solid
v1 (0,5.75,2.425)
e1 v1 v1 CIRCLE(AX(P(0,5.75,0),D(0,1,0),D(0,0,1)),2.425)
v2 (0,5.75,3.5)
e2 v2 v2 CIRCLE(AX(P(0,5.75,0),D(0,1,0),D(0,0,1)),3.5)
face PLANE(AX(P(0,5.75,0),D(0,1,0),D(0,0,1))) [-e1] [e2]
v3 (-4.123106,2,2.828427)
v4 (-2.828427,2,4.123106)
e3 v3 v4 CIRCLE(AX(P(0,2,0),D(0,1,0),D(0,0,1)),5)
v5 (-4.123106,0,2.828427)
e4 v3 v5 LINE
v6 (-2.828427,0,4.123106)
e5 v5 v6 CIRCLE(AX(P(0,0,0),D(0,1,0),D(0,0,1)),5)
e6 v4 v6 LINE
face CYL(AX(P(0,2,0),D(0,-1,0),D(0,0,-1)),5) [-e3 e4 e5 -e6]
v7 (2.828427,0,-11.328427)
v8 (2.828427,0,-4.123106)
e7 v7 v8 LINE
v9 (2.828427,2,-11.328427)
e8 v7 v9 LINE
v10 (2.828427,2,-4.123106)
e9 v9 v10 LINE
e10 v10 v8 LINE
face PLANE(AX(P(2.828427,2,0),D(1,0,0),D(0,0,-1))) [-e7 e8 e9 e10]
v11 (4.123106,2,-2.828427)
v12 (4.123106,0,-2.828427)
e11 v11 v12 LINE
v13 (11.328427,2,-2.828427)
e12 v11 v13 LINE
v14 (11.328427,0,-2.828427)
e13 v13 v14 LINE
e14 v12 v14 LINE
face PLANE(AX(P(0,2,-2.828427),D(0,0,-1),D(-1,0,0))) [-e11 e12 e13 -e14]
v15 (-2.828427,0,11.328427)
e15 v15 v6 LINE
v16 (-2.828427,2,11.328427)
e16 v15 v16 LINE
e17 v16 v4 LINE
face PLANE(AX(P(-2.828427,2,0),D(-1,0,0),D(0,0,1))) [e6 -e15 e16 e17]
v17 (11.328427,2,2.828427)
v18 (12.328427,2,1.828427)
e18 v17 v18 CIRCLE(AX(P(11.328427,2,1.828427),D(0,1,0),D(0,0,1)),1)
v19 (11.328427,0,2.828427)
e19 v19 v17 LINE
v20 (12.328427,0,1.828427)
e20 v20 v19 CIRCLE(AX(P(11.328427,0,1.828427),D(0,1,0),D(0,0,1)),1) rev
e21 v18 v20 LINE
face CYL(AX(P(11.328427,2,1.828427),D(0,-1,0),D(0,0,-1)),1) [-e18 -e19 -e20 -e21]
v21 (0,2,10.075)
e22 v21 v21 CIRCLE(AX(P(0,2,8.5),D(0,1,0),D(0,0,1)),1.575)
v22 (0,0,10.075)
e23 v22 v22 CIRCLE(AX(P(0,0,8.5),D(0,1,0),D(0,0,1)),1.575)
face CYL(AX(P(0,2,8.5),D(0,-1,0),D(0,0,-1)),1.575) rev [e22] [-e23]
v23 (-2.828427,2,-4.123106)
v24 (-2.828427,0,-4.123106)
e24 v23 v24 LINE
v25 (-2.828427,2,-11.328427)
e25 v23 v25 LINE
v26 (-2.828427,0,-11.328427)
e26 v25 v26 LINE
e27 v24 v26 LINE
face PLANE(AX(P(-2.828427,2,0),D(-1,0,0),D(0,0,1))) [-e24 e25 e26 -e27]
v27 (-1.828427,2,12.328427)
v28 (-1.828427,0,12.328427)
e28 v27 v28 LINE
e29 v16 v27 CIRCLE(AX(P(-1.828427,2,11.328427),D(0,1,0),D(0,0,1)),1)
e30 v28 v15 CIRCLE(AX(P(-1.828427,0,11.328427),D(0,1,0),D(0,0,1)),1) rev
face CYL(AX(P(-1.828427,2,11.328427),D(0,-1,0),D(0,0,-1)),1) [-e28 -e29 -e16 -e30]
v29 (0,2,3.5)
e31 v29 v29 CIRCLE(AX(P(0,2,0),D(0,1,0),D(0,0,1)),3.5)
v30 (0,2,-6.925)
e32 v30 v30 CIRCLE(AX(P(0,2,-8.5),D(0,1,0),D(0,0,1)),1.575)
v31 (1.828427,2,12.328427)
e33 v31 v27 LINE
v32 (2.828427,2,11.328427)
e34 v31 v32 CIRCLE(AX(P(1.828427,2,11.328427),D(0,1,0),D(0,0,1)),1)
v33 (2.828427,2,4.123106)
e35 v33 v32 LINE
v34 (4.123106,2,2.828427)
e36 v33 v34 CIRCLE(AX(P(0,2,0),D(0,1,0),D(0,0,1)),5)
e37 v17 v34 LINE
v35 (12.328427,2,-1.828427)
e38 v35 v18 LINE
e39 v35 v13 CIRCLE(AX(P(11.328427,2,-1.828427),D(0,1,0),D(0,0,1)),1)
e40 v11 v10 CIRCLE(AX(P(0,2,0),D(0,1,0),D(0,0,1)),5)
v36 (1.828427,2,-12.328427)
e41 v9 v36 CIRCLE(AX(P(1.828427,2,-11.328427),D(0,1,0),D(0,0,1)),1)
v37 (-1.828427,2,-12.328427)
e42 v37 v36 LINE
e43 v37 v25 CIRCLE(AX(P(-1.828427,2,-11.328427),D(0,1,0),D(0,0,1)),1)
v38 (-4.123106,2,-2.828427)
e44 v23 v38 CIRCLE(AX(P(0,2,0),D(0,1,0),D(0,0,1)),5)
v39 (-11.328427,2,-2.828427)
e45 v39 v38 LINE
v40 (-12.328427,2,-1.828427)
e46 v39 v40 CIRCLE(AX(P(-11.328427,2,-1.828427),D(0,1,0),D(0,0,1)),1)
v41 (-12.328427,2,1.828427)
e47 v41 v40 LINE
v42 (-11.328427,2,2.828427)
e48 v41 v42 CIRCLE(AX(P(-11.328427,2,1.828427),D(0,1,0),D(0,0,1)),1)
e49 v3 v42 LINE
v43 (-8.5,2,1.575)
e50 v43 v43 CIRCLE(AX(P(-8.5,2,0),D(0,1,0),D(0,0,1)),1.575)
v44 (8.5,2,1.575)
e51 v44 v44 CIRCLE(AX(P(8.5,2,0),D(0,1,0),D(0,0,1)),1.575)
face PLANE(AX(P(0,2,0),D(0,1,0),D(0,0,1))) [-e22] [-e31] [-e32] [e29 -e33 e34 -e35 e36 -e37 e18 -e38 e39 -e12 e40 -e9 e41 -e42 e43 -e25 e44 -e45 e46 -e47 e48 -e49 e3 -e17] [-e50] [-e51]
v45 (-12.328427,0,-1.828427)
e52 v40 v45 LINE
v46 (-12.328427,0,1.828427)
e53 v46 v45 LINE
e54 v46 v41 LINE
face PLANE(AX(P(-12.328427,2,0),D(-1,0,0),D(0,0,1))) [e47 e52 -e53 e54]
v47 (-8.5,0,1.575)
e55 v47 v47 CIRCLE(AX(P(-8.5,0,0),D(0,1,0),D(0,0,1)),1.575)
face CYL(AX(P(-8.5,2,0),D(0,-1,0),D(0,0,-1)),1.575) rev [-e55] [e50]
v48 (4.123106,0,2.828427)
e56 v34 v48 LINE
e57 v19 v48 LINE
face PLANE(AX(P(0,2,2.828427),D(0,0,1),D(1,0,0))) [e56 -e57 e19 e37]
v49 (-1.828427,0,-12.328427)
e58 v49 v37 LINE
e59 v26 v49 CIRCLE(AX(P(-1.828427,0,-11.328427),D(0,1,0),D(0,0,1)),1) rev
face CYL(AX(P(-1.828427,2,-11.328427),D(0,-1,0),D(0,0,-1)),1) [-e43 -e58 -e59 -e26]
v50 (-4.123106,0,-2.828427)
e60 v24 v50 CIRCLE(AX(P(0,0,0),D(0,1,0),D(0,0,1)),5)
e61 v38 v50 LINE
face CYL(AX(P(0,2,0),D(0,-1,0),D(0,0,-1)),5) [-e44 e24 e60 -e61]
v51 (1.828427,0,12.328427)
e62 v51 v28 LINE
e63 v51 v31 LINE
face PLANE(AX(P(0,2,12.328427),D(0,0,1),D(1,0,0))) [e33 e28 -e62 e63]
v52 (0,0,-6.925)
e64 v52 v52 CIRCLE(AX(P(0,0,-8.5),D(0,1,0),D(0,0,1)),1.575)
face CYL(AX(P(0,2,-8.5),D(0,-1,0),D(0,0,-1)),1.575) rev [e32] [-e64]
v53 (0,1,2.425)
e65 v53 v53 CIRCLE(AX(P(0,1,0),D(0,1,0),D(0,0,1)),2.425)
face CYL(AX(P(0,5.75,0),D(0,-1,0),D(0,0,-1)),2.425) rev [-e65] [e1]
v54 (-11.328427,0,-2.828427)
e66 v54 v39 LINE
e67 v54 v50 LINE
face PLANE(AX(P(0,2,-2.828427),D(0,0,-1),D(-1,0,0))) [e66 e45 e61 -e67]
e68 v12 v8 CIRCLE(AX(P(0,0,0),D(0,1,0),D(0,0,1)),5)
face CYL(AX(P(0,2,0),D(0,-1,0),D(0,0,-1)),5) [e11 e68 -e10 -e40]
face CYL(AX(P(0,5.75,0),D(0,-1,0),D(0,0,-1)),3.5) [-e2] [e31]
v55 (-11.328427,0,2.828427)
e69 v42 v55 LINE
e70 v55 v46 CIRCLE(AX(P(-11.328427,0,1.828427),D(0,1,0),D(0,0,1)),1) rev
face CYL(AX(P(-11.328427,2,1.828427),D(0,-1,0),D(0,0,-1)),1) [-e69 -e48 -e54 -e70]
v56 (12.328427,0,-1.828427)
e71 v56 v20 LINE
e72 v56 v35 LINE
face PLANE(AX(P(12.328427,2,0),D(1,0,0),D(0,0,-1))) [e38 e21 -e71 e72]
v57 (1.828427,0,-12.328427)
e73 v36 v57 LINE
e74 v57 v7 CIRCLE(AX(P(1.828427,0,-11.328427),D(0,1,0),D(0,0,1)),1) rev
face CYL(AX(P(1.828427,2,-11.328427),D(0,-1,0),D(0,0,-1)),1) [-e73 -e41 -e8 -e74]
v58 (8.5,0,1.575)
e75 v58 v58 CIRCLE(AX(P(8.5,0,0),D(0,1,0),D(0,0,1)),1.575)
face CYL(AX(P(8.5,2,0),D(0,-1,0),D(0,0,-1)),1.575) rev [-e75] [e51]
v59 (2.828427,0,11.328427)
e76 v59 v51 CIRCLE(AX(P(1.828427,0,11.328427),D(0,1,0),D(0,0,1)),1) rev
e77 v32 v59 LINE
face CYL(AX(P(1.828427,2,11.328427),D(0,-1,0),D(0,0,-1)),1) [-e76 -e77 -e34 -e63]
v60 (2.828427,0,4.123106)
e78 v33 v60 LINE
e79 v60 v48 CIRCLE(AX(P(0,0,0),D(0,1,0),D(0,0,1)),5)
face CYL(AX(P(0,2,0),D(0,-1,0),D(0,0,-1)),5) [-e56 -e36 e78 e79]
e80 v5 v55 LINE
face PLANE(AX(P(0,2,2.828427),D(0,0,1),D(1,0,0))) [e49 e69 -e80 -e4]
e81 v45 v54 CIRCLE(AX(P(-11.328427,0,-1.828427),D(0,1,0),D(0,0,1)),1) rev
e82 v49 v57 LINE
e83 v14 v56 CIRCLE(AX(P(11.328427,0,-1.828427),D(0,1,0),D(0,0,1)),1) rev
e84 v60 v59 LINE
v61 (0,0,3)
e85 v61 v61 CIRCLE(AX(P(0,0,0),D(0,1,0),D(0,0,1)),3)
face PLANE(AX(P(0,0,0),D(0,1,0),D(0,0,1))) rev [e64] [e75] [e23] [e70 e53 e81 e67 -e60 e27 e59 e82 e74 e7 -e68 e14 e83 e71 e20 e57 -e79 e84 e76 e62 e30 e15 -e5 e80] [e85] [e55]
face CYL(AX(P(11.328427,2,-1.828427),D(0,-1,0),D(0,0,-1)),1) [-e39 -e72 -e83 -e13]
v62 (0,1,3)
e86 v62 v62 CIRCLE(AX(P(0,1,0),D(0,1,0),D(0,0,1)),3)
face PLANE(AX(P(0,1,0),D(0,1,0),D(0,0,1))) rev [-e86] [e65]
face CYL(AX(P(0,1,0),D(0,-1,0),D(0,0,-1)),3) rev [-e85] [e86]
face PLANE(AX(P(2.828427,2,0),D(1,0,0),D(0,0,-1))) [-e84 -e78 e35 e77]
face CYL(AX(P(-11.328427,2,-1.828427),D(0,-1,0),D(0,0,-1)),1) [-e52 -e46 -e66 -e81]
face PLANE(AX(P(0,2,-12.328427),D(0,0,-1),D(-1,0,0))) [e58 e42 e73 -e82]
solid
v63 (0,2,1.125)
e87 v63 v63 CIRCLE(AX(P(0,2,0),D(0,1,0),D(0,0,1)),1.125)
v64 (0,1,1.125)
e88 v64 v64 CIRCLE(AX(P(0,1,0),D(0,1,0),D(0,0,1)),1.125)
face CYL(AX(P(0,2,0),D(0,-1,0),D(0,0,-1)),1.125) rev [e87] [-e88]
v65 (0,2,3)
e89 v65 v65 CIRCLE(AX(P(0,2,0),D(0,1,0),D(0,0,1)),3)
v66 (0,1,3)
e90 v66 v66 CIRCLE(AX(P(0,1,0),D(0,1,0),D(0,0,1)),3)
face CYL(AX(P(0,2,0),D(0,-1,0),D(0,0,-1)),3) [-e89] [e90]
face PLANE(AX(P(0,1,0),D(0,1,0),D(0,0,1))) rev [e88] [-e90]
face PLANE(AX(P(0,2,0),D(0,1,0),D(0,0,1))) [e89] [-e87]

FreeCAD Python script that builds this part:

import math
import FreeCAD as App
import Part
import Sketcher
Q = App.Units.Quantity


def edges_at(feature, points):
    """Names of the edges that pass closest to the given points."""
    edges = feature.Shape.Edges
    near = lambda p: min(range(len(edges)), key=lambda i: edges[i].distToShape(Part.Vertex(*p))[0])
    return sorted({f"Edge{near(p) + 1}" for p in points})

doc = App.newDocument("Part")
body = doc.addObject("PartDesign::Body", "Body")

# Sketch on XZ plane
sketch1 = body.newObject("Sketcher::SketchObject", "Sketch")
sketch1.AttachmentSupport = (doc.getObject("XZ_Plane"), [""])
sketch1.MapMode = "FlatFace"
sketch1.addGeometry(Part.ArcOfCircle(Part.Circle(App.Vector(0, 0, 0), App.Vector(0, 0, 1), 5), math.radians(-146), math.radians(-124)), False)
sketch1.addGeometry(Part.LineSegment(App.Vector(-4.1, -2.8, 0), App.Vector(-12.3, -2.8, 0)), False)
sketch1.addGeometry(Part.LineSegment(App.Vector(-12.3, -2.8, 0), App.Vector(-12.3, 2.8, 0)), False)
sketch1.addGeometry(Part.LineSegment(App.Vector(-12.3, 2.8, 0), App.Vector(-4.1, 2.8, 0)), False)
sketch1.addGeometry(Part.ArcOfCircle(Part.Circle(App.Vector(0, 0, 0), App.Vector(0, 0, 1), 5), math.radians(124), math.radians(146)), False)
sketch1.addGeometry(Part.LineSegment(App.Vector(-2.8, 4.1, 0), App.Vector(-2.8, 12.3, 0)), False)
sketch1.addGeometry(Part.LineSegment(App.Vector(-2.8, 12.3, 0), App.Vector(2.8, 12.3, 0)), False)
sketch1.addGeometry(Part.LineSegment(App.Vector(2.8, 12.3, 0), App.Vector(2.8, 4.1, 0)), False)
sketch1.addGeometry(Part.ArcOfCircle(Part.Circle(App.Vector(0, 0, 0), App.Vector(0, 0, 1), 5), math.radians(34), math.radians(56)), False)
sketch1.addGeometry(Part.LineSegment(App.Vector(4.1, 2.8, 0), App.Vector(12.3, 2.8, 0)), False)
sketch1.addGeometry(Part.LineSegment(App.Vector(12.3, 2.8, 0), App.Vector(12.3, -2.8, 0)), False)
sketch1.addGeometry(Part.LineSegment(App.Vector(12.3, -2.8, 0), App.Vector(4.1, -2.8, 0)), False)
sketch1.addGeometry(Part.ArcOfCircle(Part.Circle(App.Vector(0, 0, 0), App.Vector(0, 0, 1), 5), math.radians(-56), math.radians(-34)), False)
sketch1.addGeometry(Part.LineSegment(App.Vector(2.8, -4.1, 0), App.Vector(2.8, -12.3, 0)), False)
sketch1.addGeometry(Part.LineSegment(App.Vector(2.8, -12.3, 0), App.Vector(-2.8, -12.3, 0)), False)
sketch1.addGeometry(Part.LineSegment(App.Vector(-2.8, -12.3, 0), App.Vector(-2.8, -4.1, 0)), False)
sketch1.addGeometry(Part.Circle(App.Vector(0, 8.5, 0), App.Vector(0, 0, 1), 1.6), False)
sketch1.addGeometry(Part.Circle(App.Vector(-8.5, 0, 0), App.Vector(0, 0, 1), 1.6), False)
sketch1.addGeometry(Part.Circle(App.Vector(0, 0, 0), App.Vector(0, 0, 1), 3.5), False)
sketch1.addGeometry(Part.Circle(App.Vector(8.5, 0, 0), App.Vector(0, 0, 1), 1.6), False)
sketch1.addGeometry(Part.Circle(App.Vector(0, -8.5, 0), App.Vector(0, 0, 1), 1.6), False)
sketch1.addConstraint(Sketcher.Constraint("Coincident", 0, 1, 1, 1))
sketch1.addConstraint(Sketcher.Constraint("Coincident", 1, 2, 2, 1))
sketch1.addConstraint(Sketcher.Constraint("Coincident", 2, 2, 3, 1))
sketch1.addConstraint(Sketcher.Constraint("Coincident", 3, 2, 4, 2))
sketch1.addConstraint(Sketcher.Constraint("Coincident", 4, 1, 5, 1))
sketch1.addConstraint(Sketcher.Constraint("Coincident", 5, 2, 6, 1))
sketch1.addConstraint(Sketcher.Constraint("Coincident", 6, 2, 7, 1))
sketch1.addConstraint(Sketcher.Constraint("Coincident", 7, 2, 8, 2))
sketch1.addConstraint(Sketcher.Constraint("Coincident", 8, 1, 9, 1))
sketch1.addConstraint(Sketcher.Constraint("Coincident", 9, 2, 10, 1))
sketch1.addConstraint(Sketcher.Constraint("Coincident", 10, 2, 11, 1))
sketch1.addConstraint(Sketcher.Constraint("Coincident", 11, 2, 12, 2))
sketch1.addConstraint(Sketcher.Constraint("Coincident", 12, 1, 13, 1))
sketch1.addConstraint(Sketcher.Constraint("Coincident", 13, 2, 14, 1))
sketch1.addConstraint(Sketcher.Constraint("Coincident", 14, 2, 15, 1))
sketch1.addConstraint(Sketcher.Constraint("Coincident", 15, 2, 0, 2))
sketch1.addConstraint(Sketcher.Constraint("Horizontal", 1))
sketch1.addConstraint(Sketcher.Constraint("Vertical", 2))
sketch1.addConstraint(Sketcher.Constraint("Horizontal", 3))
sketch1.addConstraint(Sketcher.Constraint("Vertical", 5))
sketch1.addConstraint(Sketcher.Constraint("Horizontal", 6))
sketch1.addConstraint(Sketcher.Constraint("Vertical", 7))
sketch1.addConstraint(Sketcher.Constraint("Horizontal", 9))
sketch1.addConstraint(Sketcher.Constraint("Vertical", 10))
sketch1.addConstraint(Sketcher.Constraint("Horizontal", 11))
sketch1.addConstraint(Sketcher.Constraint("Vertical", 13))
sketch1.addConstraint(Sketcher.Constraint("Horizontal", 14))
sketch1.addConstraint(Sketcher.Constraint("Vertical", 15))
sketch1.addConstraint(Sketcher.Constraint("Coincident", 0, 3, -1, 1))
sketch1.addConstraint(Sketcher.Constraint("Coincident", 4, 3, -1, 1))
sketch1.addConstraint(Sketcher.Constraint("Coincident", 8, 3, -1, 1))
sketch1.addConstraint(Sketcher.Constraint("Coincident", 12, 3, -1, 1))
sketch1.addConstraint(Sketcher.Constraint("Coincident", 18, 3, -1, 1))
sketch1.addConstraint(Sketcher.Constraint("Equal", 0, 4))
sketch1.addConstraint(Sketcher.Constraint("Equal", 4, 8))
sketch1.addConstraint(Sketcher.Constraint("Equal", 8, 12))
sketch1.addConstraint(Sketcher.Constraint("Equal", 16, 17))
sketch1.addConstraint(Sketcher.Constraint("Equal", 17, 19))
sketch1.addConstraint(Sketcher.Constraint("Equal", 19, 20))
sketch1.addConstraint(Sketcher.Constraint("Symmetric", 17, 3, 19, 3, -1, 1))
sketch1.addConstraint(Sketcher.Constraint("Symmetric", 16, 3, 20, 3, -1, 1))
sketch1.addConstraint(Sketcher.Constraint("Symmetric", 1, 2, 9, 2, -1, 1))
sketch1.addConstraint(Sketcher.Constraint("Symmetric", 5, 2, 13, 2, -1, 1))
sketch1.addConstraint(Sketcher.Constraint("PointOnObject", 16, 3, -2))
sketch1.addConstraint(Sketcher.Constraint("PointOnObject", 17, 3, -1))
sketch1.addConstraint(Sketcher.Constraint("Horizontal", 4, 1, 7, 2))
sketch1.addConstraint(Sketcher.Constraint("Horizontal", 3, 2, 8, 1))
sketch1.addConstraint(Sketcher.Constraint("Horizontal", 1, 2, 10, 2))
sketch1.addConstraint(Sketcher.Constraint("Horizontal", 12, 1, 15, 2))
sketch1.addConstraint(Sketcher.Constraint("Equal", 14, 2))
sketch1.addConstraint(Sketcher.Constraint("Equal", 11, 5))
sketch1.addConstraint(Sketcher.Constraint("Diameter", 18, Q("7 mm")))
sketch1.addConstraint(Sketcher.Constraint("Radius", 0, Q("5 mm")))
sketch1.addConstraint(Sketcher.Constraint("Diameter", 16, Q("3.15 mm")))
sketch1.addConstraint(Sketcher.Constraint("DistanceY", -1, 1, 16, 3, Q("8.5 mm")))
sketch1.addConstraint(Sketcher.Constraint("DistanceX", 17, 3, -1, 1, Q("8.5 mm")))
sketch1.addConstraint(Sketcher.Constraint("DistanceY", 3, 2, 5, 2, Q("9.5 mm")))
sketch1.addConstraint(Sketcher.Constraint("DistanceX", 1, 2, 1, 1, Q("8.205321 mm")))
pad1 = body.newObject("PartDesign::Pad", "Pad")
pad1.Profile = sketch1
pad1.Length = 2
pad1.Reversed = True

# Sketch on XZ plane
sketch2 = body.newObject("Sketcher::SketchObject", "Sketch001")
sketch2.AttachmentSupport = (doc.getObject("XZ_Plane"), [""])
sketch2.MapMode = "FlatFace"
sketch2.addGeometry(Part.Circle(App.Vector(0, 0, 0), App.Vector(0, 0, 1), 3.5), False)
sketch2.addGeometry(Part.Circle(App.Vector(0, 0, 0), App.Vector(0, 0, 1), 2.4), False)
sketch2.addConstraint(Sketcher.Constraint("Coincident", 0, 3, -1, 1))
sketch2.addConstraint(Sketcher.Constraint("Coincident", 1, 3, -1, 1))
sketch2.addConstraint(Sketcher.Constraint("Diameter", 0, Q("7 mm")))
sketch2.addConstraint(Sketcher.Constraint("Diameter", 1, Q("4.85 mm")))
pad2 = body.newObject("PartDesign::Pad", "Pad001")
pad2.Profile = sketch2
pad2.Length = 5.75
pad2.Reversed = True
doc.recompute()

fillet = body.newObject("PartDesign::Fillet", "Fillet")
fillet.Base = (pad2, edges_at(pad2, [
    (-2.828, 1, -12.328),
    (2.828, 1, -12.328),
    (12.328, 1, -2.828),
    (12.328, 1, 2.828),
    (2.828, 1, 12.328),
    (-2.828, 1, 12.328),
    (-12.328, 1, 2.828),
    (-12.328, 1, -2.828),
]))
fillet.Radius = 1
body2 = doc.addObject("PartDesign::Body", "Body001")

# Sketch on XZ plane
sketch3 = body2.newObject("Sketcher::SketchObject", "Sketch002")
sketch3.AttachmentSupport = (doc.getObject("XZ_Plane001"), [""])
sketch3.MapMode = "FlatFace"
sketch3.addGeometry(Part.Circle(App.Vector(0, 0, 0), App.Vector(0, 0, 1), 3), False)
sketch3.addGeometry(Part.Circle(App.Vector(0, 0, 0), App.Vector(0, 0, 1), 1.1), False)
sketch3.addConstraint(Sketcher.Constraint("Coincident", 0, 3, -1, 1))
sketch3.addConstraint(Sketcher.Constraint("Coincident", 1, 3, -1, 1))
sketch3.addConstraint(Sketcher.Constraint("Diameter", 0, Q("6 mm")))
sketch3.addConstraint(Sketcher.Constraint("Diameter", 1, Q("2.25 mm")))
pad3 = body2.newObject("PartDesign::Pad", "Pad002")
pad3.Profile = sketch3
pad3.Length = 2
pad3.Reversed = True
body3 = doc.addObject("PartDesign::Body", "Body002")

# Sketch on XZ plane
sketch4 = body3.newObject("Sketcher::SketchObject", "Sketch003")
sketch4.AttachmentSupport = (doc.getObject("XZ_Plane002"), [""])
sketch4.MapMode = "FlatFace"
sketch4.addGeometry(Part.ArcOfCircle(Part.Circle(App.Vector(0, 0, 0), App.Vector(0, 0, 1), 3), math.radians(-90), math.radians(-45)), False)
sketch4.addGeometry(Part.ArcOfCircle(Part.Circle(App.Vector(0, 0, 0), App.Vector(0, 0, 1), 3), math.radians(-135), math.radians(-90)), False)
sketch4.addGeometry(Part.ArcOfCircle(Part.Circle(App.Vector(0, 0, 0), App.Vector(0, 0, 1), 3), math.radians(135), math.radians(225)), False)
sketch4.addGeometry(Part.ArcOfCircle(Part.Circle(App.Vector(0, 0, 0), App.Vector(0, 0, 1), 3), math.radians(45), math.radians(135)), False)
sketch4.addGeometry(Part.ArcOfCircle(Part.Circle(App.Vector(0, 0, 0), App.Vector(0, 0, 1), 3), math.radians(0), math.radians(45)), False)
sketch4.addGeometry(Part.ArcOfCircle(Part.Circle(App.Vector(0, 0, 0), App.Vector(0, 0, 1), 3), math.radians(-45), math.radians(0)), False)
sketch4.addGeometry(Part.ArcOfCircle(Part.Circle(App.Vector(0, 0, 0), App.Vector(0, 0, 1), 1.1), math.radians(-135), math.radians(-90)), False)
sketch4.addGeometry(Part.ArcOfCircle(Part.Circle(App.Vector(0, 0, 0), App.Vector(0, 0, 1), 1.1), math.radians(-90), math.radians(-45)), False)
sketch4.addGeometry(Part.ArcOfCircle(Part.Circle(App.Vector(0, 0, 0), App.Vector(0, 0, 1), 1.1), math.radians(-45), math.radians(0)), False)
sketch4.addGeometry(Part.ArcOfCircle(Part.Circle(App.Vector(0, 0, 0), App.Vector(0, 0, 1), 1.1), math.radians(0), math.radians(45)), False)
sketch4.addGeometry(Part.ArcOfCircle(Part.Circle(App.Vector(0, 0, 0), App.Vector(0, 0, 1), 1.1), math.radians(45), math.radians(135)), False)
sketch4.addGeometry(Part.ArcOfCircle(Part.Circle(App.Vector(0, 0, 0), App.Vector(0, 0, 1), 1.1), math.radians(135), math.radians(225)), False)
sketch4.addConstraint(Sketcher.Constraint("Tangent", 0, 1, 1, 2))
sketch4.addConstraint(Sketcher.Constraint("Tangent", 1, 1, 2, 2))
sketch4.addConstraint(Sketcher.Constraint("Tangent", 2, 1, 3, 2))
sketch4.addConstraint(Sketcher.Constraint("Tangent", 3, 1, 4, 2))
sketch4.addConstraint(Sketcher.Constraint("Tangent", 4, 1, 5, 2))
sketch4.addConstraint(Sketcher.Constraint("Tangent", 5, 1, 0, 2))
sketch4.addConstraint(Sketcher.Constraint("Tangent", 6, 2, 7, 1))
sketch4.addConstraint(Sketcher.Constraint("Tangent", 7, 2, 8, 1))
sketch4.addConstraint(Sketcher.Constraint("Tangent", 8, 2, 9, 1))
sketch4.addConstraint(Sketcher.Constraint("Tangent", 9, 2, 10, 1))
sketch4.addConstraint(Sketcher.Constraint("Tangent", 10, 2, 11, 1))
sketch4.addConstraint(Sketcher.Constraint("Tangent", 11, 2, 6, 1))
sketch4.addConstraint(Sketcher.Constraint("Coincident", 0, 3, -1, 1))
sketch4.addConstraint(Sketcher.Constraint("Coincident", 2, 3, -1, 1))
sketch4.addConstraint(Sketcher.Constraint("Coincident", 6, 3, -1, 1))
sketch4.addConstraint(Sketcher.Constraint("Coincident", 8, 3, -1, 1))
sketch4.addConstraint(Sketcher.Constraint("Equal", 2, 3))
sketch4.addConstraint(Sketcher.Constraint("Equal", 8, 9))
sketch4.addConstraint(Sketcher.Constraint("PointOnObject", 0, 1, -2))
sketch4.addConstraint(Sketcher.Constraint("PointOnObject", 4, 1, -1))
sketch4.addConstraint(Sketcher.Constraint("PointOnObject", 6, 2, -2))
sketch4.addConstraint(Sketcher.Constraint("PointOnObject", 8, 2, -1))
sketch4.addConstraint(Sketcher.Constraint("Horizontal", 2, 1, 3, 1))
sketch4.addConstraint(Sketcher.Constraint("Horizontal", 1, 1, 5, 1))
sketch4.addConstraint(Sketcher.Constraint("Horizontal", 9, 2, 10, 2))
sketch4.addConstraint(Sketcher.Constraint("Horizontal", 7, 2, 11, 2))
sketch4.addConstraint(Sketcher.Constraint("Vertical", 1, 1, 2, 1))
sketch4.addConstraint(Sketcher.Constraint("Vertical", 7, 2, 9, 2))
sketch4.addConstraint(Sketcher.Constraint("Radius", 0, Q("3 mm")))
sketch4.addConstraint(Sketcher.Constraint("Radius", 6, Q("1.125 mm")))
sketch4.addConstraint(Sketcher.Constraint("DistanceX", 1, 1, -1, 1, Q("2.12132 mm")))
sketch4.addConstraint(Sketcher.Constraint("DistanceX", -1, 1, 7, 2, Q("0.795495 mm")))
pad4 = body3.newObject("PartDesign::Pad", "Pad003")
pad4.Profile = sketch4
pad4.Length = 1
pad4.Reversed = True
doc.recompute()

body4 = doc.addObject("PartDesign::Body", "Body003")
body4.BaseFeature = body3
boolean = body.newObject("PartDesign::Boolean", "Boolean")
boolean.Type = "Cut"
boolean.addObjects([body4])
doc.recompute()

boolean2 = body2.newObject("PartDesign::Boolean", "Boolean001")
boolean2.Type = "Cut"
boolean2.addObjects([body3])

doc.recompute()
